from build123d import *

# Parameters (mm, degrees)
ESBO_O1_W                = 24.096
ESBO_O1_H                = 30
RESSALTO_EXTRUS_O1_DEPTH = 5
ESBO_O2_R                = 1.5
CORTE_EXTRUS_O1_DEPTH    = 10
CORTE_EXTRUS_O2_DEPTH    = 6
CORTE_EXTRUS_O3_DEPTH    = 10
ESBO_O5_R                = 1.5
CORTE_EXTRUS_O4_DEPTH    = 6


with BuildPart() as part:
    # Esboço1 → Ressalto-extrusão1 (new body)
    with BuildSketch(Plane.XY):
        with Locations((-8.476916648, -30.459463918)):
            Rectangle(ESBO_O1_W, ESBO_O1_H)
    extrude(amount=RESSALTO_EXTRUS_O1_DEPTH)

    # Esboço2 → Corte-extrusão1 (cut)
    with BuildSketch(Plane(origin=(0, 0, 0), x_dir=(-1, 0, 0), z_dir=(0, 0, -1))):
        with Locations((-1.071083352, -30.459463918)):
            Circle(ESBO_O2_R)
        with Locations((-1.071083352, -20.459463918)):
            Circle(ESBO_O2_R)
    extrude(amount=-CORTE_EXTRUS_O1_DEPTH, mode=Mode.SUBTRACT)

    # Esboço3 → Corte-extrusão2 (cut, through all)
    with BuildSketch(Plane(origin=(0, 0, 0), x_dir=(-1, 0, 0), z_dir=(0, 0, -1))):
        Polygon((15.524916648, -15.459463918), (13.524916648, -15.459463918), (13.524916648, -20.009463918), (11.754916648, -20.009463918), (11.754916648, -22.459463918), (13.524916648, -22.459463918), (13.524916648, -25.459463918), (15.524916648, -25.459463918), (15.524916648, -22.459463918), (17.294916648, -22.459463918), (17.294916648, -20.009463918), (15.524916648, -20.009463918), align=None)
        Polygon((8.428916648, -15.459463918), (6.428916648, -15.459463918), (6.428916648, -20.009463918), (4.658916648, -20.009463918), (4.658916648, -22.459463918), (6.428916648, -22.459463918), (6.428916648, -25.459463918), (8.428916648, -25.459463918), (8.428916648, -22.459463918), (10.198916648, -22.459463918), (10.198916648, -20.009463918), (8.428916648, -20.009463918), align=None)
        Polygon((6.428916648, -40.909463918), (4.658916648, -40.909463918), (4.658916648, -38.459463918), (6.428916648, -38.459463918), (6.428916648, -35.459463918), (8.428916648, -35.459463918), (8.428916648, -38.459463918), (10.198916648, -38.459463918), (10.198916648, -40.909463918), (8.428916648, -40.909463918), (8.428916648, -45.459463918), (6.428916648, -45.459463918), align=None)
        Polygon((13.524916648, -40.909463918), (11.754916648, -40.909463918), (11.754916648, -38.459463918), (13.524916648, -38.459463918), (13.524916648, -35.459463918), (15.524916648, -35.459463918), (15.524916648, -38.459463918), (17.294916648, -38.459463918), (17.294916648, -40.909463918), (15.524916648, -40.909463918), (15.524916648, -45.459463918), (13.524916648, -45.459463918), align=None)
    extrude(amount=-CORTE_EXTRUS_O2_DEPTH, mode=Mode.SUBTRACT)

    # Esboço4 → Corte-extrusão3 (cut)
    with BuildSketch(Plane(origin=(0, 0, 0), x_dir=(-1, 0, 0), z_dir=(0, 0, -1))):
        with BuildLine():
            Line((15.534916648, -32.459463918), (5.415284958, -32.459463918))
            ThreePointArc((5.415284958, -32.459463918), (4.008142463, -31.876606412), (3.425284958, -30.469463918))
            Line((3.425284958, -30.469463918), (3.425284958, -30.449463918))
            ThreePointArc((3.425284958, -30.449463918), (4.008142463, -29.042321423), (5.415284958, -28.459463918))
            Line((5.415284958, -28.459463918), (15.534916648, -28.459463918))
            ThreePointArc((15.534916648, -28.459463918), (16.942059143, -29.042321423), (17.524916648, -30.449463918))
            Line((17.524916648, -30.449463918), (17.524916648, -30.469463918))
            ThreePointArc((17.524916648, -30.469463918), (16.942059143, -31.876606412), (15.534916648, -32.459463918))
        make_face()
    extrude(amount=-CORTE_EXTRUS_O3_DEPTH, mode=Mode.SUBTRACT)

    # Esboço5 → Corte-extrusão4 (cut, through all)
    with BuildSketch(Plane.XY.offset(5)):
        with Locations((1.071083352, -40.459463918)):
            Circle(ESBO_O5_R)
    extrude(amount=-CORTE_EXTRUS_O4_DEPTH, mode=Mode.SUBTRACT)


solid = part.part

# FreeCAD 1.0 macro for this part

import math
import FreeCAD as App
import Part
import Sketcher

V = App.Vector
Q = App.Units.Quantity

doc = App.newDocument("Part")
params = doc.addObject("Spreadsheet::Sheet", "Params")
for row, (alias, value) in enumerate([
    ("sketch1_height", "30 mm"),
    ("pad1_length", "5 mm"),
    ("sketch2_diameter", "3 mm"),
    ("pocket1_length", "10 mm"),
    ("sketch3_width", "2 mm"),
    ("sketch3_height", "3 mm"),
    ("sketch3_width2", "1.77 mm"),
    ("sketch3_height2", "4.55 mm"),
    ("sketch4_radius", "1.99 mm"),
    ("pocket3_length", "10 mm"),
    ("sketch5_diameter", "3 mm"),
], start=1):
    params.set(f"A{row}", alias)
    params.set(f"B{row}", "=" + value)
    params.setAlias(f"B{row}", alias)

body = doc.addObject("PartDesign::Body", "Body")

# Sketch on XY plane
sketch1 = doc.addObject("Sketcher::SketchObject", "Sketch")
body.addObject(sketch1)
sketch1.AttachmentSupport = (doc.XY_Plane, [""])
sketch1.MapMode = "FlatFace"
sketch1.addGeometry([
    Part.LineSegment(V(-21, -15, 0), V(-21, -45, 0)),
    Part.LineSegment(V(-21, -45, 0), V(4, -45, 0)),
    Part.LineSegment(V(4, -45, 0), V(4, -15, 0)),
    Part.LineSegment(V(4, -15, 0), V(-21, -15, 0)),
], False)
sketch1.addConstraint([
    Sketcher.Constraint("Coincident", 0, 2, 1, 1),
    Sketcher.Constraint("Coincident", 1, 2, 2, 1),
    Sketcher.Constraint("Coincident", 2, 2, 3, 1),
    Sketcher.Constraint("Coincident", 3, 2, 0, 1),
    Sketcher.Constraint("Vertical", 0),
    Sketcher.Constraint("Horizontal", 1),
    Sketcher.Constraint("Vertical", 2),
    Sketcher.Constraint("Horizontal", 3),
    Sketcher.Constraint("DistanceY", 0, 2, 0, 1, Q("30 mm")),
    Sketcher.Constraint("DistanceX", 1, 1, 1, 2, Q("24.096 mm")),
    Sketcher.Constraint("DistanceX", 0, 2, -1, 1, Q("20.524917 mm")),
    Sketcher.Constraint("DistanceY", 0, 2, -1, 1, Q("45.459464 mm")),
])
sketch1.setExpression("Constraints[8]", "Params.sketch1_height")
pad1 = doc.addObject("PartDesign::Pad", "Pad")
body.addObject(pad1)
pad1.Profile = sketch1
pad1.setExpression("Length", "Params.pad1_length")

# Sketch on XY plane
sketch2 = doc.addObject("Sketcher::SketchObject", "Sketch001")
body.addObject(sketch2)
sketch2.AttachmentSupport = (doc.XY_Plane, [""])
sketch2.MapMode = "FlatFace"
sketch2.addGeometry([
    Part.Circle(V(1.1, -30.5, 0), V(0, 0, 1), 1.5),
    Part.Circle(V(1.1, -20.5, 0), V(0, 0, 1), 1.5),
], False)
sketch2.addConstraint([
    Sketcher.Constraint("Equal", 0, 1),
    Sketcher.Constraint("Vertical", 0, 3, 1, 3),
    Sketcher.Constraint("Diameter", 0, Q("3 mm")),
    Sketcher.Constraint("DistanceY", 0, 3, 1, 3, Q("10 mm")),
    Sketcher.Constraint("DistanceX", -1, 1, 0, 3, Q("1.071083 mm")),
    Sketcher.Constraint("DistanceY", 0, 3, -1, 1, Q("30.459464 mm")),
])
sketch2.setExpression("Constraints[2]", "Params.sketch2_diameter")
pocket1 = doc.addObject("PartDesign::Pocket", "Pocket")
body.addObject(pocket1)
pocket1.Profile = sketch2
pocket1.setExpression("Length", "Params.pocket1_length")
pocket1.Reversed = True

# Sketch on XY plane
sketch3 = doc.addObject("Sketcher::SketchObject", "Sketch002")
body.addObject(sketch3)
sketch3.AttachmentSupport = (doc.XY_Plane, [""])
sketch3.MapMode = "FlatFace"
sketch3.addGeometry([
    Part.LineSegment(V(-15.5, -15.5, 0), V(-13.5, -15.5, 0)),  # 0
    Part.LineSegment(V(-13.5, -15.5, 0), V(-13.5, -20, 0)),  # 1
    Part.LineSegment(V(-13.5, -20, 0), V(-11.8, -20, 0)),  # 2
    Part.LineSegment(V(-11.8, -20, 0), V(-11.8, -22.5, 0)),  # 3
    Part.LineSegment(V(-11.8, -22.5, 0), V(-13.5, -22.5, 0)),  # 4
    Part.LineSegment(V(-13.5, -22.5, 0), V(-13.5, -25.5, 0)),  # 5
    Part.LineSegment(V(-13.5, -25.5, 0), V(-15.5, -25.5, 0)),  # 6
    Part.LineSegment(V(-15.5, -25.5, 0), V(-15.5, -22.5, 0)),  # 7
    Part.LineSegment(V(-15.5, -22.5, 0), V(-17.3, -22.5, 0)),  # 8
    Part.LineSegment(V(-17.3, -22.5, 0), V(-17.3, -20, 0)),  # 9
    Part.LineSegment(V(-17.3, -20, 0), V(-15.5, -20, 0)),  # 10
    Part.LineSegment(V(-15.5, -20, 0), V(-15.5, -15.5, 0)),  # 11
    Part.LineSegment(V(-8.4, -15.5, 0), V(-6.4, -15.5, 0)),  # 12
    Part.LineSegment(V(-6.4, -15.5, 0), V(-6.4, -20, 0)),  # 13
    Part.LineSegment(V(-6.4, -20, 0), V(-4.7, -20, 0)),  # 14
    Part.LineSegment(V(-4.7, -20, 0), V(-4.7, -22.5, 0)),  # 15
    Part.LineSegment(V(-4.7, -22.5, 0), V(-6.4, -22.5, 0)),  # 16
    Part.LineSegment(V(-6.4, -22.5, 0), V(-6.4, -25.5, 0)),  # 17
    Part.LineSegment(V(-6.4, -25.5, 0), V(-8.4, -25.5, 0)),  # 18
    Part.LineSegment(V(-8.4, -25.5, 0), V(-8.4, -22.5, 0)),  # 19
    Part.LineSegment(V(-8.4, -22.5, 0), V(-10.2, -22.5, 0)),  # 20
    Part.LineSegment(V(-10.2, -22.5, 0), V(-10.2, -20, 0)),  # 21
    Part.LineSegment(V(-10.2, -20, 0), V(-8.4, -20, 0)),  # 22
    Part.LineSegment(V(-8.4, -20, 0), V(-8.4, -15.5, 0)),  # 23
    Part.LineSegment(V(-4.7, -40.9, 0), V(-6.4, -40.9, 0)),  # 24
    Part.LineSegment(V(-6.4, -40.9, 0), V(-6.4, -45.5, 0)),  # 25
    Part.LineSegment(V(-6.4, -45.5, 0), V(-8.4, -45.5, 0)),  # 26
    Part.LineSegment(V(-8.4, -45.5, 0), V(-8.4, -40.9, 0)),  # 27
    Part.LineSegment(V(-8.4, -40.9, 0), V(-10.2, -40.9, 0)),  # 28
    Part.LineSegment(V(-10.2, -40.9, 0), V(-10.2, -38.5, 0)),  # 29
    Part.LineSegment(V(-10.2, -38.5, 0), V(-8.4, -38.5, 0)),  # 30
    Part.LineSegment(V(-8.4, -38.5, 0), V(-8.4, -35.5, 0)),  # 31
    Part.LineSegment(V(-8.4, -35.5, 0), V(-6.4, -35.5, 0)),  # 32
    Part.LineSegment(V(-6.4, -35.5, 0), V(-6.4, -38.5, 0)),  # 33
    Part.LineSegment(V(-6.4, -38.5, 0), V(-4.7, -38.5, 0)),  # 34
    Part.LineSegment(V(-4.7, -38.5, 0), V(-4.7, -40.9, 0)),  # 35
    Part.LineSegment(V(-11.8, -40.9, 0), V(-13.5, -40.9, 0)),  # 36
    Part.LineSegment(V(-13.5, -40.9, 0), V(-13.5, -45.5, 0)),  # 37
    Part.LineSegment(V(-13.5, -45.5, 0), V(-15.5, -45.5, 0)),  # 38
    Part.LineSegment(V(-15.5, -45.5, 0), V(-15.5, -40.9, 0)),  # 39
    Part.LineSegment(V(-15.5, -40.9, 0), V(-17.3, -40.9, 0)),  # 40
    Part.LineSegment(V(-17.3, -40.9, 0), V(-17.3, -38.5, 0)),  # 41
    Part.LineSegment(V(-17.3, -38.5, 0), V(-15.5, -38.5, 0)),  # 42
    Part.LineSegment(V(-15.5, -38.5, 0), V(-15.5, -35.5, 0)),  # 43
    Part.LineSegment(V(-15.5, -35.5, 0), V(-13.5, -35.5, 0)),  # 44
    Part.LineSegment(V(-13.5, -35.5, 0), V(-13.5, -38.5, 0)),  # 45
    Part.LineSegment(V(-13.5, -38.5, 0), V(-11.8, -38.5, 0)),  # 46
    Part.LineSegment(V(-11.8, -38.5, 0), V(-11.8, -40.9, 0)),  # 47
], False)
sketch3.addConstraint([
    Sketcher.Constraint("Coincident", 0, 2, 1, 1),
    Sketcher.Constraint("Coincident", 1, 2, 2, 1),
    Sketcher.Constraint("Coincident", 2, 2, 3, 1),
    Sketcher.Constraint("Coincident", 3, 2, 4, 1),
    Sketcher.Constraint("Coincident", 4, 2, 5, 1),
    Sketcher.Constraint("Coincident", 5, 2, 6, 1),
    Sketcher.Constraint("Coincident", 6, 2, 7, 1),
    Sketcher.Constraint("Coincident", 7, 2, 8, 1),
    Sketcher.Constraint("Coincident", 8, 2, 9, 1),
    Sketcher.Constraint("Coincident", 9, 2, 10, 1),
    Sketcher.Constraint("Coincident", 10, 2, 11, 1),
    Sketcher.Constraint("Coincident", 11, 2, 0, 1),
    Sketcher.Constraint("Coincident", 12, 2, 13, 1),
    Sketcher.Constraint("Coincident", 13, 2, 14, 1),
    Sketcher.Constraint("Coincident", 14, 2, 15, 1),
    Sketcher.Constraint("Coincident", 15, 2, 16, 1),
    Sketcher.Constraint("Coincident", 16, 2, 17, 1),
    Sketcher.Constraint("Coincident", 17, 2, 18, 1),
    Sketcher.Constraint("Coincident", 18, 2, 19, 1),
    Sketcher.Constraint("Coincident", 19, 2, 20, 1),
    Sketcher.Constraint("Coincident", 20, 2, 21, 1),
    Sketcher.Constraint("Coincident", 21, 2, 22, 1),
    Sketcher.Constraint("Coincident", 22, 2, 23, 1),
    Sketcher.Constraint("Coincident", 23, 2, 12, 1),
    Sketcher.Constraint("Coincident", 24, 2, 25, 1),
    Sketcher.Constraint("Coincident", 25, 2, 26, 1),
    Sketcher.Constraint("Coincident", 26, 2, 27, 1),
    Sketcher.Constraint("Coincident", 27, 2, 28, 1),
    Sketcher.Constraint("Coincident", 28, 2, 29, 1),
    Sketcher.Constraint("Coincident", 29, 2, 30, 1),
    Sketcher.Constraint("Coincident", 30, 2, 31, 1),
    Sketcher.Constraint("Coincident", 31, 2, 32, 1),
    Sketcher.Constraint("Coincident", 32, 2, 33, 1),
    Sketcher.Constraint("Coincident", 33, 2, 34, 1),
    Sketcher.Constraint("Coincident", 34, 2, 35, 1),
    Sketcher.Constraint("Coincident", 35, 2, 24, 1),
    Sketcher.Constraint("Coincident", 36, 2, 37, 1),
    Sketcher.Constraint("Coincident", 37, 2, 38, 1),
    Sketcher.Constraint("Coincident", 38, 2, 39, 1),
    Sketcher.Constraint("Coincident", 39, 2, 40, 1),
    Sketcher.Constraint("Coincident", 40, 2, 41, 1),
    Sketcher.Constraint("Coincident", 41, 2, 42, 1),
    Sketcher.Constraint("Coincident", 42, 2, 43, 1),
    Sketcher.Constraint("Coincident", 43, 2, 44, 1),
    Sketcher.Constraint("Coincident", 44, 2, 45, 1),
    Sketcher.Constraint("Coincident", 45, 2, 46, 1),
    Sketcher.Constraint("Coincident", 46, 2, 47, 1),
    Sketcher.Constraint("Coincident", 47, 2, 36, 1),
    Sketcher.Constraint("Horizontal", 0),
    Sketcher.Constraint("Vertical", 1),
    Sketcher.Constraint("Horizontal", 2),
    Sketcher.Constraint("Vertical", 3),
    Sketcher.Constraint("Horizontal", 4),
    Sketcher.Constraint("Vertical", 5),
    Sketcher.Constraint("Horizontal", 6),
    Sketcher.Constraint("Vertical", 7),
    Sketcher.Constraint("Horizontal", 8),
    Sketcher.Constraint("Vertical", 9),
    Sketcher.Constraint("Horizontal", 10),
    Sketcher.Constraint("Vertical", 11),
    Sketcher.Constraint("Horizontal", 12),
    Sketcher.Constraint("Vertical", 13),
    Sketcher.Constraint("Horizontal", 14),
    Sketcher.Constraint("Vertical", 15),
    Sketcher.Constraint("Horizontal", 16),
    Sketcher.Constraint("Vertical", 17),
    Sketcher.Constraint("Horizontal", 18),
    Sketcher.Constraint("Vertical", 19),
    Sketcher.Constraint("Horizontal", 20),
    Sketcher.Constraint("Vertical", 21),
    Sketcher.Constraint("Horizontal", 22),
    Sketcher.Constraint("Vertical", 23),
    Sketcher.Constraint("Horizontal", 24),
    Sketcher.Constraint("Vertical", 25),
    Sketcher.Constraint("Horizontal", 26),
    Sketcher.Constraint("Vertical", 27),
    Sketcher.Constraint("Horizontal", 28),
    Sketcher.Constraint("Vertical", 29),
    Sketcher.Constraint("Horizontal", 30),
    Sketcher.Constraint("Vertical", 31),
    Sketcher.Constraint("Horizontal", 32),
    Sketcher.Constraint("Vertical", 33),
    Sketcher.Constraint("Horizontal", 34),
    Sketcher.Constraint("Vertical", 35),
    Sketcher.Constraint("Horizontal", 36),
    Sketcher.Constraint("Vertical", 37),
    Sketcher.Constraint("Horizontal", 38),
    Sketcher.Constraint("Vertical", 39),
    Sketcher.Constraint("Horizontal", 40),
    Sketcher.Constraint("Vertical", 41),
    Sketcher.Constraint("Horizontal", 42),
    Sketcher.Constraint("Vertical", 43),
    Sketcher.Constraint("Horizontal", 44),
    Sketcher.Constraint("Vertical", 45),
    Sketcher.Constraint("Horizontal", 46),
    Sketcher.Constraint("Vertical", 47),
    Sketcher.Constraint("Horizontal", 4, 2, 7, 2),
    Sketcher.Constraint("Horizontal", 2, 2, 9, 2),
    Sketcher.Constraint("Horizontal", 11, 2, 12, 2),
    Sketcher.Constraint("Horizontal", 10, 2, 13, 2),
    Sketcher.Constraint("Horizontal", 8, 2, 15, 2),
    Sketcher.Constraint("Horizontal", 6, 2, 17, 2),
    Sketcher.Constraint("Horizontal", 16, 2, 19, 2),
    Sketcher.Constraint("Horizontal", 14, 2, 21, 2),
    Sketcher.Constraint("Horizontal", 24, 2, 27, 2),
    Sketcher.Constraint("Horizontal", 30, 2, 33, 2),
    Sketcher.Constraint("Horizontal", 35, 2, 36, 2),
    Sketcher.Constraint("Horizontal", 26, 2, 37, 2),
    Sketcher.Constraint("Horizontal", 36, 2, 39, 2),
    Sketcher.Constraint("Horizontal", 34, 2, 41, 2),
    Sketcher.Constraint("Horizontal", 32, 2, 43, 2),
    Sketcher.Constraint("Horizontal", 42, 2, 45, 2),
    Sketcher.Constraint("Vertical", 1, 2, 4, 2),
    Sketcher.Constraint("Vertical", 7, 2, 10, 2),
    Sketcher.Constraint("Vertical", 13, 2, 16, 2),
    Sketcher.Constraint("Vertical", 19, 2, 22, 2),
    Sketcher.Constraint("Vertical", 17, 2, 24, 2),
    Sketcher.Constraint("Vertical", 23, 2, 26, 2),
    Sketcher.Constraint("Vertical", 21, 2, 28, 2),
    Sketcher.Constraint("Vertical", 27, 2, 30, 2),
    Sketcher.Constraint("Vertical", 25, 2, 32, 2),
    Sketcher.Constraint("Vertical", 15, 2, 34, 2),
    Sketcher.Constraint("Vertical", 5, 2, 36, 2),
    Sketcher.Constraint("Vertical", 11, 2, 38, 2),
    Sketcher.Constraint("Vertical", 9, 2, 40, 2),
    Sketcher.Constraint("Vertical", 39, 2, 42, 2),
    Sketcher.Constraint("Vertical", 37, 2, 44, 2),
    Sketcher.Constraint("Vertical", 3, 2, 46, 2),
    Sketcher.Constraint("Equal", 4, 8),
    Sketcher.Constraint("Equal", 6, 12),
    Sketcher.Constraint("Equal", 10, 14),
    Sketcher.Constraint("Equal", 16, 20),
    Sketcher.Constraint("Equal", 23, 25),
    Sketcher.Constraint("Equal", 21, 29),
    Sketcher.Constraint("Equal", 19, 31),
    Sketcher.Constraint("DistanceX", 0, 1, 0, 2, Q("2 mm")),
    Sketcher.Constraint("DistanceY", 5, 2, 5, 1, Q("3 mm")),
    Sketcher.Constraint("DistanceY", 3, 2, 0, 2, Q("7 mm")),
    Sketcher.Constraint("DistanceY", 25, 2, 17, 2, Q("20 mm")),
    Sketcher.Constraint("DistanceX", 2, 1, 2, 2, Q("1.77 mm")),
    Sketcher.Constraint("DistanceY", 1, 2, 1, 1, Q("4.55 mm")),
    Sketcher.Constraint("DistanceX", 2, 2, 12, 2, Q("5.326 mm")),
    Sketcher.Constraint("DistanceX", 0, 2, -1, 1, Q("13.524917 mm")),
    Sketcher.Constraint("DistanceY", 0, 2, -1, 1, Q("15.459464 mm")),
])
sketch3.setExpression("Constraints[135]", "Params.sketch3_width")
sketch3.setExpression("Constraints[136]", "Params.sketch3_height")
sketch3.setExpression("Constraints[139]", "Params.sketch3_width2")
sketch3.setExpression("Constraints[140]", "Params.sketch3_height2")
pocket2 = doc.addObject("PartDesign::Pocket", "Pocket001")
body.addObject(pocket2)
pocket2.Profile = sketch3
pocket2.Type = "ThroughAll"
pocket2.Reversed = True

# Sketch on XY plane
sketch4 = doc.addObject("Sketcher::SketchObject", "Sketch003")
body.addObject(sketch4)
sketch4.AttachmentSupport = (doc.XY_Plane, [""])
sketch4.MapMode = "FlatFace"
sketch4.addGeometry([
    Part.LineSegment(V(-5.415, -32.459, 0), V(-15.535, -32.459, 0)),  # 0
    Part.ArcOfCircle(Part.Circle(V(-15.535, -30.469, 0), V(0, 0, 1), 1.99), math.radians(180), math.radians(270)),  # 1
    Part.LineSegment(V(-17.525, -30.469, 0), V(-17.525, -30.449, 0)),  # 2
    Part.ArcOfCircle(Part.Circle(V(-15.535, -30.449, 0), V(0, 0, 1), 1.99), math.radians(90), math.radians(180)),  # 3
    Part.LineSegment(V(-15.535, -28.459, 0), V(-5.415, -28.459, 0)),  # 4
    Part.ArcOfCircle(Part.Circle(V(-5.415, -30.449, 0), V(0, 0, 1), 1.99), math.radians(0), math.radians(90)),  # 5
    Part.LineSegment(V(-3.425, -30.449, 0), V(-3.425, -30.469, 0)),  # 6
    Part.ArcOfCircle(Part.Circle(V(-5.415, -30.469, 0), V(0, 0, 1), 1.99), math.radians(-90), math.radians(0)),  # 7
], False)
sketch4.addConstraint([
    Sketcher.Constraint("Tangent", 0, 2, 1, 2),
    Sketcher.Constraint("Tangent", 1, 1, 2, 1),
    Sketcher.Constraint("Tangent", 2, 2, 3, 2),
    Sketcher.Constraint("Tangent", 3, 1, 4, 1),
    Sketcher.Constraint("Tangent", 4, 2, 5, 2),
    Sketcher.Constraint("Tangent", 5, 1, 6, 1),
    Sketcher.Constraint("Tangent", 6, 2, 7, 2),
    Sketcher.Constraint("Tangent", 7, 1, 0, 1),
    Sketcher.Constraint("Horizontal", 0),
    Sketcher.Constraint("Vertical", 2),
    Sketcher.Constraint("Horizontal", 4),
    Sketcher.Constraint("Vertical", 6),
    Sketcher.Constraint("Equal", 1, 3),
    Sketcher.Constraint("Equal", 3, 5),
    Sketcher.Constraint("Equal", 5, 7),
    Sketcher.Constraint("Radius", 1, Q("1.99 mm")),
    Sketcher.Constraint("DistanceY", 0, 2, 3, 1, Q("4 mm")),
    Sketcher.Constraint("DistanceX", 0, 2, 0, 1, Q("10.119632 mm")),
    Sketcher.Constraint("DistanceX", 1, 3, -1, 1, Q("15.534917 mm")),
    Sketcher.Constraint("DistanceY", 1, 3, -1, 1, Q("30.469464 mm")),
])
sketch4.setExpression("Constraints[15]", "Params.sketch4_radius")
pocket3 = doc.addObject("PartDesign::Pocket", "Pocket002")
body.addObject(pocket3)
pocket3.Profile = sketch4
pocket3.setExpression("Length", "Params.pocket3_length")
pocket3.Reversed = True

# Sketch on XY plane
sketch5 = doc.addObject("Sketcher::SketchObject", "Sketch004")
body.addObject(sketch5)
sketch5.AttachmentSupport = (doc.XY_Plane, [""])
sketch5.MapMode = "FlatFace"
sketch5.AttachmentOffset = App.Placement(V(0, 0, 5), App.Rotation())
sketch5.addGeometry(Part.Circle(V(1.1, -40.5, 0), V(0, 0, 1), 1.5), False)
sketch5.addConstraint([
    Sketcher.Constraint("Diameter", 0, Q("3 mm")),
    Sketcher.Constraint("DistanceX", -1, 1, 0, 3, Q("1.071083 mm")),
    Sketcher.Constraint("DistanceY", 0, 3, -1, 1, Q("40.459464 mm")),
])
sketch5.setExpression("Constraints[0]", "Params.sketch5_diameter")
pocket4 = doc.addObject("PartDesign::Pocket", "Pocket003")
body.addObject(pocket4)
pocket4.Profile = sketch5
pocket4.Type = "ThroughAll"

doc.recompute()
